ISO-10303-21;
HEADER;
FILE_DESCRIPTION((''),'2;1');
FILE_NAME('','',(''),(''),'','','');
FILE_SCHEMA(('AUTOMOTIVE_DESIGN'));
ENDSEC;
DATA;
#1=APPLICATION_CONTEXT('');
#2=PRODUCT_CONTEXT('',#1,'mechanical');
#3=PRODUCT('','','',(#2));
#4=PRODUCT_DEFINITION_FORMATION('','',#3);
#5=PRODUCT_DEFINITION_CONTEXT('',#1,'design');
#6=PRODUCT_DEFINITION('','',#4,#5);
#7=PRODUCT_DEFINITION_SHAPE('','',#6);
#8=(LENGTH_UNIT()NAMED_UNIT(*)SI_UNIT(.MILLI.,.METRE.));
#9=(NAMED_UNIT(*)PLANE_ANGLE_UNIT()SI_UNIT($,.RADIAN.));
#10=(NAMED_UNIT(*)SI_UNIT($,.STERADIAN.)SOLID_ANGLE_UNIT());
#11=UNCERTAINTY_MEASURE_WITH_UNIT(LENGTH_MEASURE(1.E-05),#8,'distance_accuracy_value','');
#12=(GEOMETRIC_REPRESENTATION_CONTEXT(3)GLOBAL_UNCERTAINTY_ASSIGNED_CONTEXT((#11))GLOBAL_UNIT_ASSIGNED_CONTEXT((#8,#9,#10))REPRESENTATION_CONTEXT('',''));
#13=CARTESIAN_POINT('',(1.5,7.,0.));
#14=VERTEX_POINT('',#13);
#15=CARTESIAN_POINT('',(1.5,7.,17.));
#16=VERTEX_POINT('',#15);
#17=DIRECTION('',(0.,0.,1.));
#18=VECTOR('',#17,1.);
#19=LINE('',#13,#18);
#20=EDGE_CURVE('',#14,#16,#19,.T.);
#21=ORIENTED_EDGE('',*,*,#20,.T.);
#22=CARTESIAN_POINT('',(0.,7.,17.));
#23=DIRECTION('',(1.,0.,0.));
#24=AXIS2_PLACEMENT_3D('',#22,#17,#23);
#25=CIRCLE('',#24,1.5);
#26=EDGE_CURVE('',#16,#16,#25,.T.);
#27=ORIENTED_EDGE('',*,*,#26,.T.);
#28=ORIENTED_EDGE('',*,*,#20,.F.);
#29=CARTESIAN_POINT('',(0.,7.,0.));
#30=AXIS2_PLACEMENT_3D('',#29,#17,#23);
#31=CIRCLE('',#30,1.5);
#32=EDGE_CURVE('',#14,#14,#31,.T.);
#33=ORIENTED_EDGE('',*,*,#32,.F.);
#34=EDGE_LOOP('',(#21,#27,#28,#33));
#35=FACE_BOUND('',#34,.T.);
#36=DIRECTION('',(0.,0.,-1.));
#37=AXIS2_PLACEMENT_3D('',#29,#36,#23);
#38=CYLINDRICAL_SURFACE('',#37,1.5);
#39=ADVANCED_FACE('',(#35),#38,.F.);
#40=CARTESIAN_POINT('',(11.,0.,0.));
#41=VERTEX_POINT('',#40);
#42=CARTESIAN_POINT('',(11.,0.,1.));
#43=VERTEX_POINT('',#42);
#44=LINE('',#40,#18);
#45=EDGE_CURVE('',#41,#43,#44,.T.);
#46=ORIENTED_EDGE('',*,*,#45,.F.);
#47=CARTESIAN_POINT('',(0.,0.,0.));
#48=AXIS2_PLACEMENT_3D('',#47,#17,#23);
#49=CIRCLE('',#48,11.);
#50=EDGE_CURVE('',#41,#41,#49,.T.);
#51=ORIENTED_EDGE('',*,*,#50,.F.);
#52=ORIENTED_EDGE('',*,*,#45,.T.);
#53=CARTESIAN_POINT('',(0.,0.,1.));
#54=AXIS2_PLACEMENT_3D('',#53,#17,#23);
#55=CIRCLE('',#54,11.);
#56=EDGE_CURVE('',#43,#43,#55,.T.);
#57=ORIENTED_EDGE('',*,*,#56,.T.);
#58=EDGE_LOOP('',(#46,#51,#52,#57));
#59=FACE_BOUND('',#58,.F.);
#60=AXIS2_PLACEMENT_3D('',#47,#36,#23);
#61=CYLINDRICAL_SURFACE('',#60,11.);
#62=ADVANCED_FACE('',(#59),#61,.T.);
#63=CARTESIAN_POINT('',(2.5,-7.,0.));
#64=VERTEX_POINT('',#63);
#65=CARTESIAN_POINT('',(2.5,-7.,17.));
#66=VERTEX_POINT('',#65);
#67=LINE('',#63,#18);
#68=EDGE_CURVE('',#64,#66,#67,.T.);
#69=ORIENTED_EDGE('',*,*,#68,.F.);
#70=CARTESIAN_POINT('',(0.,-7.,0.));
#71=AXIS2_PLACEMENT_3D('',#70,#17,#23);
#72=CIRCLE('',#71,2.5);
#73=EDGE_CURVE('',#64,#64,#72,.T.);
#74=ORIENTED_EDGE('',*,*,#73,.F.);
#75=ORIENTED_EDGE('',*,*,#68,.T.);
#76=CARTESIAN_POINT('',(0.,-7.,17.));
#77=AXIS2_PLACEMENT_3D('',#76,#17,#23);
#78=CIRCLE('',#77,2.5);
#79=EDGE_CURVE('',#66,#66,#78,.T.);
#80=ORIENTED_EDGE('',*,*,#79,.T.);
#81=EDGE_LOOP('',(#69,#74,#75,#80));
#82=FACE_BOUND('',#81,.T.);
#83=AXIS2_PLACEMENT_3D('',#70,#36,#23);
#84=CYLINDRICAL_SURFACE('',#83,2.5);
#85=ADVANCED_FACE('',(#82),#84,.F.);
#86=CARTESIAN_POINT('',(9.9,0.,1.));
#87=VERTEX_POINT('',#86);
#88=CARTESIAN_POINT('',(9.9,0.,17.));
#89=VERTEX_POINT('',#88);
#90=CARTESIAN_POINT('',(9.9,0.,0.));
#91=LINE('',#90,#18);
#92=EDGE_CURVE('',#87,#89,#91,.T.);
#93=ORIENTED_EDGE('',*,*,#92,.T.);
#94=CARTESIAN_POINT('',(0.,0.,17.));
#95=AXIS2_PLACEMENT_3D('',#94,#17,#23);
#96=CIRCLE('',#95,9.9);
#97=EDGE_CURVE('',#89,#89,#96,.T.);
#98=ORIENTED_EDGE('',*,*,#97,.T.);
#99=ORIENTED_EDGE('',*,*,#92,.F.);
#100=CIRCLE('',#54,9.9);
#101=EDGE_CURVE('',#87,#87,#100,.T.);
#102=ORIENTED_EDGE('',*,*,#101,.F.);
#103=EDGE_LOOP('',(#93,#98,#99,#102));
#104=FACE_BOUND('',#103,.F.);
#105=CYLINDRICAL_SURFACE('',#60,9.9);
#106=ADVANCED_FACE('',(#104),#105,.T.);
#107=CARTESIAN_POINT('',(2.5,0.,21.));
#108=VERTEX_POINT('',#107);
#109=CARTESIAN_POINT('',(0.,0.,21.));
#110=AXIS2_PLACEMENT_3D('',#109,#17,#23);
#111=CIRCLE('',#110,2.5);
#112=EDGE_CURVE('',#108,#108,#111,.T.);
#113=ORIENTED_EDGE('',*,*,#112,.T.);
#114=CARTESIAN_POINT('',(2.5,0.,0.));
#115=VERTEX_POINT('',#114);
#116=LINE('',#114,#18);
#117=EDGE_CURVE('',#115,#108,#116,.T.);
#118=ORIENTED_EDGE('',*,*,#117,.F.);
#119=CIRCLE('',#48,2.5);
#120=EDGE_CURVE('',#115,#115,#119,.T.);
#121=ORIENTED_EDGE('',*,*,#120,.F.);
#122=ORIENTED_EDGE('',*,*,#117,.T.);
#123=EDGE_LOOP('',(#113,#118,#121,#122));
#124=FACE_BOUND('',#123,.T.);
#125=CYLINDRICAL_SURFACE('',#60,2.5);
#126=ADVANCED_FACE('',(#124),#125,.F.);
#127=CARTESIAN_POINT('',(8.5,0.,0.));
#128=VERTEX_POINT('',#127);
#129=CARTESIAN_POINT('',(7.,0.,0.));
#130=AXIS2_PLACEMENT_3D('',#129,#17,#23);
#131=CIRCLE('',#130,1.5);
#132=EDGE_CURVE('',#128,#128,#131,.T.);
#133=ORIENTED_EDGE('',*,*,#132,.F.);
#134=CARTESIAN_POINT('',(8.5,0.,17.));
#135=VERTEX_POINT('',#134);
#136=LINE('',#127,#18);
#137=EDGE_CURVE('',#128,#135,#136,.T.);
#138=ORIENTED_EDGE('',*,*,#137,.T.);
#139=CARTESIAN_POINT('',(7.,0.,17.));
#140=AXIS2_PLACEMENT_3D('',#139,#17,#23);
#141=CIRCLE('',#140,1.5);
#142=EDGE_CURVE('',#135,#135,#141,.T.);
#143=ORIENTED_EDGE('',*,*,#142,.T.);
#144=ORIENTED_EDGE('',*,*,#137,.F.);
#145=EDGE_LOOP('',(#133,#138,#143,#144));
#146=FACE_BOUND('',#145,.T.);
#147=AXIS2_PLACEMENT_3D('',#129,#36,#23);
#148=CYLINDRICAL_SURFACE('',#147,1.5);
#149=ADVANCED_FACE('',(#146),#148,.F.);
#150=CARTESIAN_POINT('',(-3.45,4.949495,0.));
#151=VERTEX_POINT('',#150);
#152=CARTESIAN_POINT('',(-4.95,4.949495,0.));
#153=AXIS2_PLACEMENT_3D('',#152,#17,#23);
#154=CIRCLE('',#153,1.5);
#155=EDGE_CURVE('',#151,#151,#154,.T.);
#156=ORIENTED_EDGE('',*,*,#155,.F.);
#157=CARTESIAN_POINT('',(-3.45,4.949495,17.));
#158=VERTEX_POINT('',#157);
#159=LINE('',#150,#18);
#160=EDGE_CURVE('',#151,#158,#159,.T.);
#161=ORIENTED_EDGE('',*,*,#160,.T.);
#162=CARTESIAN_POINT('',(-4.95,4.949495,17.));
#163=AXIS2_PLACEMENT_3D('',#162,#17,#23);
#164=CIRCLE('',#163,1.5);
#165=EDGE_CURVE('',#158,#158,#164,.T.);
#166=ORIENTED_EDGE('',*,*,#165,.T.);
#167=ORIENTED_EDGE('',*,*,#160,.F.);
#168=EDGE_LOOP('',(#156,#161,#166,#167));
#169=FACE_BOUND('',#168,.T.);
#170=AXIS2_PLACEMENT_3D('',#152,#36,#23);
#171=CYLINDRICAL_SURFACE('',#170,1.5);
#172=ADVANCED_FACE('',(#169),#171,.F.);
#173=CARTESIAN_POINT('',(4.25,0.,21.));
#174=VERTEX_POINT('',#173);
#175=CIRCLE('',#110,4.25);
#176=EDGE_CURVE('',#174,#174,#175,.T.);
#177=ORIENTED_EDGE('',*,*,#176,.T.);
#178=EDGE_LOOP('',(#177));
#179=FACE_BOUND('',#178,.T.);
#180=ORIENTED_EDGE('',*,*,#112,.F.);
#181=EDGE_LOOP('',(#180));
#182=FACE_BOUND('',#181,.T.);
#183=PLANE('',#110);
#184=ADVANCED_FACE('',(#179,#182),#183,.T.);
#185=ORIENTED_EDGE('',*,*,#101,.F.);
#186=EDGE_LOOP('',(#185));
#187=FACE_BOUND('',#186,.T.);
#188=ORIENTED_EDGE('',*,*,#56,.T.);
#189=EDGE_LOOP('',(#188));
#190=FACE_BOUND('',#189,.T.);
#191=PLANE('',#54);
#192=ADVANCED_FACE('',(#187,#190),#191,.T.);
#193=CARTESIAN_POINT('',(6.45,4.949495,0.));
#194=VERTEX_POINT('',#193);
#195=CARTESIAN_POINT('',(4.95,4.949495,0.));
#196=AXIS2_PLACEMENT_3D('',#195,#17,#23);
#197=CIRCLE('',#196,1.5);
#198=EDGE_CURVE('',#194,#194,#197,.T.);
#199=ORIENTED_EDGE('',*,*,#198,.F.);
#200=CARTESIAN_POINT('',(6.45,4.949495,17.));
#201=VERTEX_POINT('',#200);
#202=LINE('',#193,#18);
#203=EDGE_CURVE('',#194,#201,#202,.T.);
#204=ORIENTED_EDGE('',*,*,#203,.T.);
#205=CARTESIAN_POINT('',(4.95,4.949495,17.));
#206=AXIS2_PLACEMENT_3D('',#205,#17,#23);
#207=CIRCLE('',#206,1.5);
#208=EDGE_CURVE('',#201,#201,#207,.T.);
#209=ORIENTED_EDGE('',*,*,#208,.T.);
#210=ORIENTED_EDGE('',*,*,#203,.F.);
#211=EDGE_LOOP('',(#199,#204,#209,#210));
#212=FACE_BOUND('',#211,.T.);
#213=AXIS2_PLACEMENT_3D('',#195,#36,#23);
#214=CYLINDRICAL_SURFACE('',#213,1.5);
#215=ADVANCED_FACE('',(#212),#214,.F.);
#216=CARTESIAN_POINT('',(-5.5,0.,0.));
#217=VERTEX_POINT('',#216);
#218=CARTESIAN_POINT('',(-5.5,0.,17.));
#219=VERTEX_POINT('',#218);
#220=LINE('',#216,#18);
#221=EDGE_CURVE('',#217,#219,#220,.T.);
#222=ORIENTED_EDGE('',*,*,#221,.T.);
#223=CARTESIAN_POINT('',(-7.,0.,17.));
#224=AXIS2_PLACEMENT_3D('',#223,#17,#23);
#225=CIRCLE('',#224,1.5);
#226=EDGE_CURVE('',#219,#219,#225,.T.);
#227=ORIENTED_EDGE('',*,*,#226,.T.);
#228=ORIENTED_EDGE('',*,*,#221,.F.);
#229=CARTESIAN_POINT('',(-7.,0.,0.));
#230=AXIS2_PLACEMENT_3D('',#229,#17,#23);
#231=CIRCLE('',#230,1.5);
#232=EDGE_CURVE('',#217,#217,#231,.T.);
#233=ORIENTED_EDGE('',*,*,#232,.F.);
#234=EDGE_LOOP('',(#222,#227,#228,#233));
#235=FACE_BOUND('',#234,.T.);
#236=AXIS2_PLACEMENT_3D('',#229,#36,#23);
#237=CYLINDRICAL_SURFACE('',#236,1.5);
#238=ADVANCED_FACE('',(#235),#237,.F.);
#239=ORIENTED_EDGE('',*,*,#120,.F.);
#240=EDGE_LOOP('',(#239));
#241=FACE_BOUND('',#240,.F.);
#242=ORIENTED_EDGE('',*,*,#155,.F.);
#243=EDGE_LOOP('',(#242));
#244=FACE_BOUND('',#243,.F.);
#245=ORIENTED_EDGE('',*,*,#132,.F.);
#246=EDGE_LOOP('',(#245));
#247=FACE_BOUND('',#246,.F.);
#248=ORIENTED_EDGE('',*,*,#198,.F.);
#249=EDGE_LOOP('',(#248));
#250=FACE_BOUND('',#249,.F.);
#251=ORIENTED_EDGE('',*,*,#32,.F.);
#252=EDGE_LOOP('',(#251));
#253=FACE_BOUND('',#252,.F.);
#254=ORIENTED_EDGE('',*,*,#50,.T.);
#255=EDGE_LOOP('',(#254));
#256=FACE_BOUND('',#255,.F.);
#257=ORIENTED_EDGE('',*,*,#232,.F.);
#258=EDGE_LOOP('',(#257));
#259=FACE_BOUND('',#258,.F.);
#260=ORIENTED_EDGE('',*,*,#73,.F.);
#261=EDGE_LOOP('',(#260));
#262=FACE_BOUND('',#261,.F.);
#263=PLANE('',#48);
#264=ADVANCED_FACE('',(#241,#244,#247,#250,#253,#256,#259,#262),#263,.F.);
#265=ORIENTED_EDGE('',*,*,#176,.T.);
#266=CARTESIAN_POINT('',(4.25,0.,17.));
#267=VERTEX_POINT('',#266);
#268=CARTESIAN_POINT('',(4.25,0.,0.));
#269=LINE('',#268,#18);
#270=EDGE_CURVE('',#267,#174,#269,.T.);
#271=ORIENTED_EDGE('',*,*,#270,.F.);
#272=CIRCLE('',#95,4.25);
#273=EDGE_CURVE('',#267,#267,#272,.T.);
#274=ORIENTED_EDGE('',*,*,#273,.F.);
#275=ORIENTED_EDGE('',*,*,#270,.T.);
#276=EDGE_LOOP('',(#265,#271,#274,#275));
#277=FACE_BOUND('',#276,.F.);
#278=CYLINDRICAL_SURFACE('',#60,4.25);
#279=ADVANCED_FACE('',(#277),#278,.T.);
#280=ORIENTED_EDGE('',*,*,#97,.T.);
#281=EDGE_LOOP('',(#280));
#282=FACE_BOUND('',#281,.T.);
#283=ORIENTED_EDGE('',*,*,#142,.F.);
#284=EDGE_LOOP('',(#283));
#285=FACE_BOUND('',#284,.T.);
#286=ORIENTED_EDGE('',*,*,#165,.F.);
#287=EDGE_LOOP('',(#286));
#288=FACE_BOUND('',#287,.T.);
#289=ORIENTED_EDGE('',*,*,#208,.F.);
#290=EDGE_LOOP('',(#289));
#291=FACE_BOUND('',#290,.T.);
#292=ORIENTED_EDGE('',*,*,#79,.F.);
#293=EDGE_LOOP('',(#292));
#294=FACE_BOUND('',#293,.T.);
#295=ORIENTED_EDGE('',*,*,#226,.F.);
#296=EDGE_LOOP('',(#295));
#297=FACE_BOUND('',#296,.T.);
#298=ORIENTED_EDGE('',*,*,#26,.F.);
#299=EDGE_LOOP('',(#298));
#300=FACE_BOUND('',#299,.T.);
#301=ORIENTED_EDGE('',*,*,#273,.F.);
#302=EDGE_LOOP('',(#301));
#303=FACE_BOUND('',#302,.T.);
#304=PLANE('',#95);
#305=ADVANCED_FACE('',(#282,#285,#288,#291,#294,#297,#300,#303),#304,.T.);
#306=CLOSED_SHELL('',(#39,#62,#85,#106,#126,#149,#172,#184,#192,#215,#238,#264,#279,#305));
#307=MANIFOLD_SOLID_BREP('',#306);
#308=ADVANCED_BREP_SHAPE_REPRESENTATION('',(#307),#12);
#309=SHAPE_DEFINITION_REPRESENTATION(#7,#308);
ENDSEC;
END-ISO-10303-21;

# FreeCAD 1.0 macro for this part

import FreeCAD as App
import Part
import Sketcher
from FreeCAD import Vector

doc = App.newDocument("Part")
body = doc.addObject("PartDesign::Body", "Body")

# Sketch on XY plane
sketch1 = body.newObject("Sketcher::SketchObject", "Sketch")
sketch1.AttachmentSupport = (doc.getObject("XY_Plane"), [""])
sketch1.MapMode = "FlatFace"
sketch1.addGeometry([
    Part.Circle(Vector(0, 0, 0), Vector(0, 0, 1), 4.2),
    Part.Circle(Vector(0, 0, 0), Vector(0, 0, 1), 2.5),
], False)
sketch1.addConstraint([
    Sketcher.Constraint("Coincident", 0, 3, -1, 1),
    Sketcher.Constraint("Coincident", 1, 3, -1, 1),
    Sketcher.Constraint("Diameter", 1, 5.0),
    Sketcher.Constraint("Diameter", 0, 8.5),
])
pad1 = body.newObject("PartDesign::Pad", "Pad")
pad1.Profile = sketch1
pad1.Length = 21

# Sketch on XY plane
sketch2 = body.newObject("Sketcher::SketchObject", "Sketch001")
sketch2.AttachmentSupport = (doc.getObject("XY_Plane"), [""])
sketch2.MapMode = "FlatFace"
sketch2.addGeometry([
    Part.Circle(Vector(0, 0, 0), Vector(0, 0, 1), 9.9),  # 0
    Part.Circle(Vector(0, -7, 0), Vector(0, 0, 1), 2.5),  # 1
    Part.Circle(Vector(-7, 0, 0), Vector(0, 0, 1), 1.5),  # 2
    Part.Circle(Vector(-5, 4.9, 0), Vector(0, 0, 1), 1.5),  # 3
    Part.Circle(Vector(0, 0, 0), Vector(0, 0, 1), 4.2),  # 4
    Part.Circle(Vector(7, 0, 0), Vector(0, 0, 1), 1.5),  # 5
    Part.Circle(Vector(0, 7, 0), Vector(0, 0, 1), 1.5),  # 6
    Part.Circle(Vector(5, 4.9, 0), Vector(0, 0, 1), 1.5),  # 7
], False)
sketch2.addConstraint([
    Sketcher.Constraint("Coincident", 0, 3, -1, 1),
    Sketcher.Constraint("Coincident", 4, 3, -1, 1),
    Sketcher.Constraint("Equal", 2, 3),
    Sketcher.Constraint("Equal", 3, 5),
    Sketcher.Constraint("Equal", 5, 6),
    Sketcher.Constraint("Equal", 6, 7),
    Sketcher.Constraint("Symmetric", 2, 3, 5, 3, -1, 1),
    Sketcher.Constraint("Symmetric", 1, 3, 6, 3, -1, 1),
    Sketcher.Constraint("Symmetric", 3, 3, 7, 3, -2),
    Sketcher.Constraint("PointOnObject", 1, 3, -2),
    Sketcher.Constraint("PointOnObject", 2, 3, -1),
    Sketcher.Constraint("Diameter", 1, 5.0),
    Sketcher.Constraint("Diameter", 2, 3.0),
    Sketcher.Constraint("Diameter", 0, 19.8),
    Sketcher.Constraint("Diameter", 4, 8.5),
    Sketcher.Constraint("DistanceY", 1, 3, -1, 1, 7.0),
    Sketcher.Constraint("DistanceX", 2, 3, -1, 1, 7.0),
    Sketcher.Constraint("DistanceX", 3, 3, 7, 3, 9.9),
    Sketcher.Constraint("DistanceY", -1, 1, 3, 3, 4.949495),
])
pad2 = body.newObject("PartDesign::Pad", "Pad001")
pad2.Profile = sketch2
pad2.Length = 17

# Sketch on XY plane
sketch3 = body.newObject("Sketcher::SketchObject", "Sketch002")
sketch3.AttachmentSupport = (doc.getObject("XY_Plane"), [""])
sketch3.MapMode = "FlatFace"
sketch3.addGeometry([
    Part.Circle(Vector(0, 0, 0), Vector(0, 0, 1), 11),
    Part.Circle(Vector(0, 0, 0), Vector(0, 0, 1), 10),
], False)
sketch3.addConstraint([
    Sketcher.Constraint("Coincident", 0, 3, -1, 1),
    Sketcher.Constraint("Coincident", 1, 3, -1, 1),
    Sketcher.Constraint("Diameter", 0, 22.0),
    Sketcher.Constraint("Diameter", 1, 19.8),
])
pad3 = body.newObject("PartDesign::Pad", "Pad002")
pad3.Profile = sketch3
pad3.Length = 1

doc.recompute()
